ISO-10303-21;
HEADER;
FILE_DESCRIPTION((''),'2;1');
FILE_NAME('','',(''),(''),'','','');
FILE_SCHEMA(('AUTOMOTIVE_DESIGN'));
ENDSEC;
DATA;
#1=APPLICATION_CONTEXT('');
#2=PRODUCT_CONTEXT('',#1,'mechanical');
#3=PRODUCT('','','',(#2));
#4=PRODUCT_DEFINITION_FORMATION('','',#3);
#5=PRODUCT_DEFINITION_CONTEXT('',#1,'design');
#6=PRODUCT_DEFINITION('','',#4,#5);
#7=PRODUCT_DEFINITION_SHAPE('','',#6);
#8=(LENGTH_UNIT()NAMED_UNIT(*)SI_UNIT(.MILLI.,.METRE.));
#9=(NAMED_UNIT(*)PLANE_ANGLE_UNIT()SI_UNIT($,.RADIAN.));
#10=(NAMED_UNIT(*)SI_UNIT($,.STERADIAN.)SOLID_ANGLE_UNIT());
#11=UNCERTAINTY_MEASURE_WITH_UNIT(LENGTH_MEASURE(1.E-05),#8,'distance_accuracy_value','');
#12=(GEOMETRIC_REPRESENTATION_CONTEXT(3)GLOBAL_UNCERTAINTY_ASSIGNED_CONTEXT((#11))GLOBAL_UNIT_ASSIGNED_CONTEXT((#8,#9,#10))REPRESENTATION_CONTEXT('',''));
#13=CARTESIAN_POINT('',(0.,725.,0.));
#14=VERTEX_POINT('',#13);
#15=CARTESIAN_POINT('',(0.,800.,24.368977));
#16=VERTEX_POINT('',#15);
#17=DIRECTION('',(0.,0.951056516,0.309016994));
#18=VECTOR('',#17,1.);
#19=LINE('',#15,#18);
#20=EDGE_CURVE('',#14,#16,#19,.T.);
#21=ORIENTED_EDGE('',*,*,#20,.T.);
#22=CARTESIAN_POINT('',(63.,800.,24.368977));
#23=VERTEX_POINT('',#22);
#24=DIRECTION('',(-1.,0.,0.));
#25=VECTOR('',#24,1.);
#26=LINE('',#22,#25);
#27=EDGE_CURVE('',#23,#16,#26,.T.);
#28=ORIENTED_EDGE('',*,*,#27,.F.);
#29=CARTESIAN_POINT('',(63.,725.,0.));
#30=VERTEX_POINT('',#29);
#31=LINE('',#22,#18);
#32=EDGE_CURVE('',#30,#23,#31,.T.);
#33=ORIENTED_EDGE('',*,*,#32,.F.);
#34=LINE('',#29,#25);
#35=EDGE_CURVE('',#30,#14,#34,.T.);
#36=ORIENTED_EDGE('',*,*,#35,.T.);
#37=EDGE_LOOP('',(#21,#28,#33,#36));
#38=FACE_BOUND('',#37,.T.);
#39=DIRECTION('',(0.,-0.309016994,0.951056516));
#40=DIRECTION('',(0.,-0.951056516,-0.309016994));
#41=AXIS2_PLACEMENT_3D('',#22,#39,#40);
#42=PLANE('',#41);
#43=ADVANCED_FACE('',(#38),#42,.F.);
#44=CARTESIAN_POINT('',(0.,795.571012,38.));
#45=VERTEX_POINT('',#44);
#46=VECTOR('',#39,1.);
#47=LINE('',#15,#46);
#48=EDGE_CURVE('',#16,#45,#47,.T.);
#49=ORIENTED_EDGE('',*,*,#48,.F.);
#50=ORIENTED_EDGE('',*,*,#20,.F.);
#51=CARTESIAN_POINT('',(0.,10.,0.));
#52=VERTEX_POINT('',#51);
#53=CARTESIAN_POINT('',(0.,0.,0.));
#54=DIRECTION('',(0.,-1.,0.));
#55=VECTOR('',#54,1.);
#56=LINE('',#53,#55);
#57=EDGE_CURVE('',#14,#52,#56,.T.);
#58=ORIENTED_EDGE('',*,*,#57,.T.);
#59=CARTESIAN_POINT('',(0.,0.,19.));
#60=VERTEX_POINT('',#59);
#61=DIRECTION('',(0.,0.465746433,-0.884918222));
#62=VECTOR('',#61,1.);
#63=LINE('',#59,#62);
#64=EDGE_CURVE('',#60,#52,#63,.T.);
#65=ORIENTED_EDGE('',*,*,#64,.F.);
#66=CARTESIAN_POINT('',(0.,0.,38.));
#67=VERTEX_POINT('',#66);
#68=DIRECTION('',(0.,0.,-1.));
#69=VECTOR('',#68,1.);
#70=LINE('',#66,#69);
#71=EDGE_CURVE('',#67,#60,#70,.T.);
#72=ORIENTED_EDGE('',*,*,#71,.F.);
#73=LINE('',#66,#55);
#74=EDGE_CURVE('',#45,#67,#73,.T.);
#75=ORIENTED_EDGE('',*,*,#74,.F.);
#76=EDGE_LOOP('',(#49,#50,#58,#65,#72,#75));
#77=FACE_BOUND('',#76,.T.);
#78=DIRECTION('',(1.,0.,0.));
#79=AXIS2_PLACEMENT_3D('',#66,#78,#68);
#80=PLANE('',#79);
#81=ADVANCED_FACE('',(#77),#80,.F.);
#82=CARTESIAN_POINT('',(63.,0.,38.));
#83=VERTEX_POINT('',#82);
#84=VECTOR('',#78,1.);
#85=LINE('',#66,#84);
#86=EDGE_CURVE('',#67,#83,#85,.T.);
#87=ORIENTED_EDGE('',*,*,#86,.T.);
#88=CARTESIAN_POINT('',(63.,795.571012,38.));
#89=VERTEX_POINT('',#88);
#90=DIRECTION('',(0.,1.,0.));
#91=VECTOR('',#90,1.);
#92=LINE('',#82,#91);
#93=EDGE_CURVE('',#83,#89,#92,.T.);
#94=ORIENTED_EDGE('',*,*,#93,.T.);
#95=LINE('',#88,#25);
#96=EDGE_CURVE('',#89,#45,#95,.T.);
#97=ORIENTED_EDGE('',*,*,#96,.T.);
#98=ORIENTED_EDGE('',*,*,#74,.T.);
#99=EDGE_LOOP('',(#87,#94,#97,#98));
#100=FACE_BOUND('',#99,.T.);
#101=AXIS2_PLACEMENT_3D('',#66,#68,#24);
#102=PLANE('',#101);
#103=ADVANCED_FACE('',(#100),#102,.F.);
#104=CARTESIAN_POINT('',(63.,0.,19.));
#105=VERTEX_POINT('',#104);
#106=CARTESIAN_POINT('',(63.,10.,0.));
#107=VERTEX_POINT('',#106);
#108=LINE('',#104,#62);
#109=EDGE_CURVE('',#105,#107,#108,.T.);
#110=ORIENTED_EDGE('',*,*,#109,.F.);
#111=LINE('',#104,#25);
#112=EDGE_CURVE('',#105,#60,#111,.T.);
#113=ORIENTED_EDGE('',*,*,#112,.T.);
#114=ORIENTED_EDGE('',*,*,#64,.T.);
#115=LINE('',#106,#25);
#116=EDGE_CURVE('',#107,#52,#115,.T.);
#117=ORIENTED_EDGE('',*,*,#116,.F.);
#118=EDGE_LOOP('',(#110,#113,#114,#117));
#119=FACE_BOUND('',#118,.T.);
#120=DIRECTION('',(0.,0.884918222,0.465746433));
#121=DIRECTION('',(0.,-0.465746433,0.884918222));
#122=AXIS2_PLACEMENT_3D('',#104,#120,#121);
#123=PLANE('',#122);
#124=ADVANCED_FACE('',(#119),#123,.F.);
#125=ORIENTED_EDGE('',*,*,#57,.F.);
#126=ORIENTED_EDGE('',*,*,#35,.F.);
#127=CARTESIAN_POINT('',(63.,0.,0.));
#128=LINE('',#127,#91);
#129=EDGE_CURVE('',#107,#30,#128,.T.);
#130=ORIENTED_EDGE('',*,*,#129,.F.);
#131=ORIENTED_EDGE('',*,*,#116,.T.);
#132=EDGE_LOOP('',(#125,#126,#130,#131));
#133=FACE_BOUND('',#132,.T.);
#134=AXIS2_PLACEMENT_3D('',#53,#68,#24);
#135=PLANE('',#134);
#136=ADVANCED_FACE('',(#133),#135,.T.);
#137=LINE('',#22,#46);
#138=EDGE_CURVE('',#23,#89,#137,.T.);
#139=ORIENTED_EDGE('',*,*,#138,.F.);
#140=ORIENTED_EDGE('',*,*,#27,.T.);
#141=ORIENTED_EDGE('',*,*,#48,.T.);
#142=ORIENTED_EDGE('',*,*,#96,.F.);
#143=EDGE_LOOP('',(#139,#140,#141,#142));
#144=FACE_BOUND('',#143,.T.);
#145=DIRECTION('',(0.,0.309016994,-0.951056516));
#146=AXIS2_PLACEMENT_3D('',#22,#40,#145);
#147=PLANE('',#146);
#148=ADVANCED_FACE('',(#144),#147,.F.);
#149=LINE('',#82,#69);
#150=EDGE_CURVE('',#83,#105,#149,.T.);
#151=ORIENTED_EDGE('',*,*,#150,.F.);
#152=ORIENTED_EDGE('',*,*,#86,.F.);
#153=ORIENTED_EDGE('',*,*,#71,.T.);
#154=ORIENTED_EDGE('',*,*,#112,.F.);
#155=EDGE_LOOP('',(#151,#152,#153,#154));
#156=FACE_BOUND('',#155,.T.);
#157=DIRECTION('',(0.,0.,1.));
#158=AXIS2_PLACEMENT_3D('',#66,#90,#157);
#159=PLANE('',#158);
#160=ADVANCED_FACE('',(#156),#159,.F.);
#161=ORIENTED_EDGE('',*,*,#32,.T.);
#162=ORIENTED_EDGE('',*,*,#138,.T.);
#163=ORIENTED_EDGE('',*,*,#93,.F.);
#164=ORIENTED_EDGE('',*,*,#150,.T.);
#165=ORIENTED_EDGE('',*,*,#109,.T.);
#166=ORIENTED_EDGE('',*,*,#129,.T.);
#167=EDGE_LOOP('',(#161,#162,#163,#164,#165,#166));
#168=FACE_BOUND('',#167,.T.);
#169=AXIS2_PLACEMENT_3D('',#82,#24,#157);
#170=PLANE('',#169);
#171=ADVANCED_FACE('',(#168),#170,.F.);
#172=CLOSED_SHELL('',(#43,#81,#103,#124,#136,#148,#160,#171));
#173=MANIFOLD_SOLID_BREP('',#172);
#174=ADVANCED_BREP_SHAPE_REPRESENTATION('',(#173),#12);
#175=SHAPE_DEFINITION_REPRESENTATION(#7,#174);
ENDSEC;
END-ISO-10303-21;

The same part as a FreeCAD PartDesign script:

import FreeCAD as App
import Part
import Sketcher
from FreeCAD import Vector
Q = App.Units.Quantity

doc = App.newDocument("Part")
body = doc.addObject("PartDesign::Body", "Body")

sketch1 = doc.addObject("Sketcher::SketchObject", "Sketch")
body.addObject(sketch1)
sketch1.AttachmentSupport = (doc.XY_Plane, [""])
sketch1.MapMode = "FlatFace"
sketch1.addGeometry(Part.LineSegment(Vector(0, 800, 0), Vector(0, 0, 0)), False)
sketch1.addGeometry(Part.LineSegment(Vector(0, 0, 0), Vector(63, 0, 0)), False)
sketch1.addGeometry(Part.LineSegment(Vector(63, 0, 0), Vector(63, 800, 0)), False)
sketch1.addGeometry(Part.LineSegment(Vector(63, 800, 0), Vector(0, 800, 0)), False)
sketch1.addConstraint(Sketcher.Constraint("Coincident", 0, 2, 1, 1))
sketch1.addConstraint(Sketcher.Constraint("Coincident", 1, 2, 2, 1))
sketch1.addConstraint(Sketcher.Constraint("Coincident", 2, 2, 3, 1))
sketch1.addConstraint(Sketcher.Constraint("Coincident", 3, 2, 0, 1))
sketch1.addConstraint(Sketcher.Constraint("Vertical", 0))
sketch1.addConstraint(Sketcher.Constraint("Horizontal", 1))
sketch1.addConstraint(Sketcher.Constraint("Vertical", 2))
sketch1.addConstraint(Sketcher.Constraint("Horizontal", 3))
sketch1.addConstraint(Sketcher.Constraint("Coincident", 0, 2, -1, 1))
sketch1.addConstraint(Sketcher.Constraint("DistanceX", 1, 1, 1, 2, 63.0))
sketch1.addConstraint(Sketcher.Constraint("DistanceY", 0, 2, 0, 1, 800.0))
pad1 = doc.addObject("PartDesign::Pad", "Pad")
body.addObject(pad1)
pad1.Profile = sketch1
pad1.Length = 38

sketch2 = doc.addObject("Sketcher::SketchObject", "Sketch001")
body.addObject(sketch2)
sketch2.AttachmentSupport = (doc.YZ_Plane, [""])
sketch2.MapMode = "FlatFace"
sketch2.addGeometry(Part.LineSegment(Vector(725, 0, 0), Vector(800, 24, 0)), False)
sketch2.addGeometry(Part.LineSegment(Vector(800, 24, 0), Vector(800, 0, 0)), False)
sketch2.addGeometry(Part.LineSegment(Vector(800, 0, 0), Vector(725, 0, 0)), False)
sketch2.addGeometry(Part.LineSegment(Vector(0, 19, 0), Vector(10, 0, 0)), False)
sketch2.addGeometry(Part.LineSegment(Vector(10, 0, 0), Vector(0, 0, 0)), False)
sketch2.addGeometry(Part.LineSegment(Vector(0, 0, 0), Vector(0, 19, 0)), False)
sketch2.addConstraint(Sketcher.Constraint("Coincident", 0, 2, 1, 1))
sketch2.addConstraint(Sketcher.Constraint("Coincident", 1, 2, 2, 1))
sketch2.addConstraint(Sketcher.Constraint("Coincident", 2, 2, 0, 1))
sketch2.addConstraint(Sketcher.Constraint("Coincident", 3, 2, 4, 1))
sketch2.addConstraint(Sketcher.Constraint("Coincident", 4, 2, 5, 1))
sketch2.addConstraint(Sketcher.Constraint("Coincident", 5, 2, 3, 1))
sketch2.addConstraint(Sketcher.Constraint("Vertical", 1))
sketch2.addConstraint(Sketcher.Constraint("Horizontal", 2))
sketch2.addConstraint(Sketcher.Constraint("Horizontal", 4))
sketch2.addConstraint(Sketcher.Constraint("Vertical", 5))
sketch2.addConstraint(Sketcher.Constraint("Coincident", 4, 2, -1, 1))
sketch2.addConstraint(Sketcher.Constraint("PointOnObject", 1, 2, -1))
sketch2.addConstraint(Sketcher.Constraint("DistanceX", 2, 2, 2, 1, 75.0))
sketch2.addConstraint(Sketcher.Constraint("DistanceX", 4, 2, 4, 1, 10.0))
sketch2.addConstraint(Sketcher.Constraint("DistanceY", 5, 1, 5, 2, 19.0))
sketch2.addConstraint(Sketcher.Constraint("Angle", 0, Q("18 deg")))
sketch2.addConstraint(Sketcher.Constraint("DistanceX", -1, 1, 0, 2, 800.0))
pocket1 = doc.addObject("PartDesign::Pocket", "Pocket")
body.addObject(pocket1)
pocket1.Profile = sketch2
pocket1.Type = "ThroughAll"
pocket1.Reversed = True

sketch3 = doc.addObject("Sketcher::SketchObject", "Sketch002")
body.addObject(sketch3)
sketch3.AttachmentSupport = (doc.YZ_Plane, [""])
sketch3.MapMode = "FlatFace"
sketch3.addGeometry(Part.LineSegment(Vector(800, 24.4, 0), Vector(795.6, 38, 0)), False)
sketch3.addGeometry(Part.LineSegment(Vector(795.6, 38, 0), Vector(800, 38, 0)), False)
sketch3.addGeometry(Part.LineSegment(Vector(800, 38, 0), Vector(800, 24.4, 0)), False)
sketch3.addConstraint(Sketcher.Constraint("Coincident", 0, 2, 1, 1))
sketch3.addConstraint(Sketcher.Constraint("Coincident", 1, 2, 2, 1))
sketch3.addConstraint(Sketcher.Constraint("Coincident", 2, 2, 0, 1))
sketch3.addConstraint(Sketcher.Constraint("Horizontal", 1))
sketch3.addConstraint(Sketcher.Constraint("Vertical", 2))
sketch3.addConstraint(Sketcher.Constraint("Angle", 0, Q("108 deg")))
sketch3.addConstraint(Sketcher.Constraint("DistanceY", -1, 1, 0, 2, 38.0))
sketch3.addConstraint(Sketcher.Constraint("DistanceX", -1, 1, 1, 2, 800.0))
sketch3.addConstraint(Sketcher.Constraint("DistanceX", 1, 1, 1, 2, 4.428988))
pocket2 = doc.addObject("PartDesign::Pocket", "Pocket001")
body.addObject(pocket2)
pocket2.Profile = sketch3
pocket2.Type = "ThroughAll"
pocket2.Reversed = True

doc.recompute()
